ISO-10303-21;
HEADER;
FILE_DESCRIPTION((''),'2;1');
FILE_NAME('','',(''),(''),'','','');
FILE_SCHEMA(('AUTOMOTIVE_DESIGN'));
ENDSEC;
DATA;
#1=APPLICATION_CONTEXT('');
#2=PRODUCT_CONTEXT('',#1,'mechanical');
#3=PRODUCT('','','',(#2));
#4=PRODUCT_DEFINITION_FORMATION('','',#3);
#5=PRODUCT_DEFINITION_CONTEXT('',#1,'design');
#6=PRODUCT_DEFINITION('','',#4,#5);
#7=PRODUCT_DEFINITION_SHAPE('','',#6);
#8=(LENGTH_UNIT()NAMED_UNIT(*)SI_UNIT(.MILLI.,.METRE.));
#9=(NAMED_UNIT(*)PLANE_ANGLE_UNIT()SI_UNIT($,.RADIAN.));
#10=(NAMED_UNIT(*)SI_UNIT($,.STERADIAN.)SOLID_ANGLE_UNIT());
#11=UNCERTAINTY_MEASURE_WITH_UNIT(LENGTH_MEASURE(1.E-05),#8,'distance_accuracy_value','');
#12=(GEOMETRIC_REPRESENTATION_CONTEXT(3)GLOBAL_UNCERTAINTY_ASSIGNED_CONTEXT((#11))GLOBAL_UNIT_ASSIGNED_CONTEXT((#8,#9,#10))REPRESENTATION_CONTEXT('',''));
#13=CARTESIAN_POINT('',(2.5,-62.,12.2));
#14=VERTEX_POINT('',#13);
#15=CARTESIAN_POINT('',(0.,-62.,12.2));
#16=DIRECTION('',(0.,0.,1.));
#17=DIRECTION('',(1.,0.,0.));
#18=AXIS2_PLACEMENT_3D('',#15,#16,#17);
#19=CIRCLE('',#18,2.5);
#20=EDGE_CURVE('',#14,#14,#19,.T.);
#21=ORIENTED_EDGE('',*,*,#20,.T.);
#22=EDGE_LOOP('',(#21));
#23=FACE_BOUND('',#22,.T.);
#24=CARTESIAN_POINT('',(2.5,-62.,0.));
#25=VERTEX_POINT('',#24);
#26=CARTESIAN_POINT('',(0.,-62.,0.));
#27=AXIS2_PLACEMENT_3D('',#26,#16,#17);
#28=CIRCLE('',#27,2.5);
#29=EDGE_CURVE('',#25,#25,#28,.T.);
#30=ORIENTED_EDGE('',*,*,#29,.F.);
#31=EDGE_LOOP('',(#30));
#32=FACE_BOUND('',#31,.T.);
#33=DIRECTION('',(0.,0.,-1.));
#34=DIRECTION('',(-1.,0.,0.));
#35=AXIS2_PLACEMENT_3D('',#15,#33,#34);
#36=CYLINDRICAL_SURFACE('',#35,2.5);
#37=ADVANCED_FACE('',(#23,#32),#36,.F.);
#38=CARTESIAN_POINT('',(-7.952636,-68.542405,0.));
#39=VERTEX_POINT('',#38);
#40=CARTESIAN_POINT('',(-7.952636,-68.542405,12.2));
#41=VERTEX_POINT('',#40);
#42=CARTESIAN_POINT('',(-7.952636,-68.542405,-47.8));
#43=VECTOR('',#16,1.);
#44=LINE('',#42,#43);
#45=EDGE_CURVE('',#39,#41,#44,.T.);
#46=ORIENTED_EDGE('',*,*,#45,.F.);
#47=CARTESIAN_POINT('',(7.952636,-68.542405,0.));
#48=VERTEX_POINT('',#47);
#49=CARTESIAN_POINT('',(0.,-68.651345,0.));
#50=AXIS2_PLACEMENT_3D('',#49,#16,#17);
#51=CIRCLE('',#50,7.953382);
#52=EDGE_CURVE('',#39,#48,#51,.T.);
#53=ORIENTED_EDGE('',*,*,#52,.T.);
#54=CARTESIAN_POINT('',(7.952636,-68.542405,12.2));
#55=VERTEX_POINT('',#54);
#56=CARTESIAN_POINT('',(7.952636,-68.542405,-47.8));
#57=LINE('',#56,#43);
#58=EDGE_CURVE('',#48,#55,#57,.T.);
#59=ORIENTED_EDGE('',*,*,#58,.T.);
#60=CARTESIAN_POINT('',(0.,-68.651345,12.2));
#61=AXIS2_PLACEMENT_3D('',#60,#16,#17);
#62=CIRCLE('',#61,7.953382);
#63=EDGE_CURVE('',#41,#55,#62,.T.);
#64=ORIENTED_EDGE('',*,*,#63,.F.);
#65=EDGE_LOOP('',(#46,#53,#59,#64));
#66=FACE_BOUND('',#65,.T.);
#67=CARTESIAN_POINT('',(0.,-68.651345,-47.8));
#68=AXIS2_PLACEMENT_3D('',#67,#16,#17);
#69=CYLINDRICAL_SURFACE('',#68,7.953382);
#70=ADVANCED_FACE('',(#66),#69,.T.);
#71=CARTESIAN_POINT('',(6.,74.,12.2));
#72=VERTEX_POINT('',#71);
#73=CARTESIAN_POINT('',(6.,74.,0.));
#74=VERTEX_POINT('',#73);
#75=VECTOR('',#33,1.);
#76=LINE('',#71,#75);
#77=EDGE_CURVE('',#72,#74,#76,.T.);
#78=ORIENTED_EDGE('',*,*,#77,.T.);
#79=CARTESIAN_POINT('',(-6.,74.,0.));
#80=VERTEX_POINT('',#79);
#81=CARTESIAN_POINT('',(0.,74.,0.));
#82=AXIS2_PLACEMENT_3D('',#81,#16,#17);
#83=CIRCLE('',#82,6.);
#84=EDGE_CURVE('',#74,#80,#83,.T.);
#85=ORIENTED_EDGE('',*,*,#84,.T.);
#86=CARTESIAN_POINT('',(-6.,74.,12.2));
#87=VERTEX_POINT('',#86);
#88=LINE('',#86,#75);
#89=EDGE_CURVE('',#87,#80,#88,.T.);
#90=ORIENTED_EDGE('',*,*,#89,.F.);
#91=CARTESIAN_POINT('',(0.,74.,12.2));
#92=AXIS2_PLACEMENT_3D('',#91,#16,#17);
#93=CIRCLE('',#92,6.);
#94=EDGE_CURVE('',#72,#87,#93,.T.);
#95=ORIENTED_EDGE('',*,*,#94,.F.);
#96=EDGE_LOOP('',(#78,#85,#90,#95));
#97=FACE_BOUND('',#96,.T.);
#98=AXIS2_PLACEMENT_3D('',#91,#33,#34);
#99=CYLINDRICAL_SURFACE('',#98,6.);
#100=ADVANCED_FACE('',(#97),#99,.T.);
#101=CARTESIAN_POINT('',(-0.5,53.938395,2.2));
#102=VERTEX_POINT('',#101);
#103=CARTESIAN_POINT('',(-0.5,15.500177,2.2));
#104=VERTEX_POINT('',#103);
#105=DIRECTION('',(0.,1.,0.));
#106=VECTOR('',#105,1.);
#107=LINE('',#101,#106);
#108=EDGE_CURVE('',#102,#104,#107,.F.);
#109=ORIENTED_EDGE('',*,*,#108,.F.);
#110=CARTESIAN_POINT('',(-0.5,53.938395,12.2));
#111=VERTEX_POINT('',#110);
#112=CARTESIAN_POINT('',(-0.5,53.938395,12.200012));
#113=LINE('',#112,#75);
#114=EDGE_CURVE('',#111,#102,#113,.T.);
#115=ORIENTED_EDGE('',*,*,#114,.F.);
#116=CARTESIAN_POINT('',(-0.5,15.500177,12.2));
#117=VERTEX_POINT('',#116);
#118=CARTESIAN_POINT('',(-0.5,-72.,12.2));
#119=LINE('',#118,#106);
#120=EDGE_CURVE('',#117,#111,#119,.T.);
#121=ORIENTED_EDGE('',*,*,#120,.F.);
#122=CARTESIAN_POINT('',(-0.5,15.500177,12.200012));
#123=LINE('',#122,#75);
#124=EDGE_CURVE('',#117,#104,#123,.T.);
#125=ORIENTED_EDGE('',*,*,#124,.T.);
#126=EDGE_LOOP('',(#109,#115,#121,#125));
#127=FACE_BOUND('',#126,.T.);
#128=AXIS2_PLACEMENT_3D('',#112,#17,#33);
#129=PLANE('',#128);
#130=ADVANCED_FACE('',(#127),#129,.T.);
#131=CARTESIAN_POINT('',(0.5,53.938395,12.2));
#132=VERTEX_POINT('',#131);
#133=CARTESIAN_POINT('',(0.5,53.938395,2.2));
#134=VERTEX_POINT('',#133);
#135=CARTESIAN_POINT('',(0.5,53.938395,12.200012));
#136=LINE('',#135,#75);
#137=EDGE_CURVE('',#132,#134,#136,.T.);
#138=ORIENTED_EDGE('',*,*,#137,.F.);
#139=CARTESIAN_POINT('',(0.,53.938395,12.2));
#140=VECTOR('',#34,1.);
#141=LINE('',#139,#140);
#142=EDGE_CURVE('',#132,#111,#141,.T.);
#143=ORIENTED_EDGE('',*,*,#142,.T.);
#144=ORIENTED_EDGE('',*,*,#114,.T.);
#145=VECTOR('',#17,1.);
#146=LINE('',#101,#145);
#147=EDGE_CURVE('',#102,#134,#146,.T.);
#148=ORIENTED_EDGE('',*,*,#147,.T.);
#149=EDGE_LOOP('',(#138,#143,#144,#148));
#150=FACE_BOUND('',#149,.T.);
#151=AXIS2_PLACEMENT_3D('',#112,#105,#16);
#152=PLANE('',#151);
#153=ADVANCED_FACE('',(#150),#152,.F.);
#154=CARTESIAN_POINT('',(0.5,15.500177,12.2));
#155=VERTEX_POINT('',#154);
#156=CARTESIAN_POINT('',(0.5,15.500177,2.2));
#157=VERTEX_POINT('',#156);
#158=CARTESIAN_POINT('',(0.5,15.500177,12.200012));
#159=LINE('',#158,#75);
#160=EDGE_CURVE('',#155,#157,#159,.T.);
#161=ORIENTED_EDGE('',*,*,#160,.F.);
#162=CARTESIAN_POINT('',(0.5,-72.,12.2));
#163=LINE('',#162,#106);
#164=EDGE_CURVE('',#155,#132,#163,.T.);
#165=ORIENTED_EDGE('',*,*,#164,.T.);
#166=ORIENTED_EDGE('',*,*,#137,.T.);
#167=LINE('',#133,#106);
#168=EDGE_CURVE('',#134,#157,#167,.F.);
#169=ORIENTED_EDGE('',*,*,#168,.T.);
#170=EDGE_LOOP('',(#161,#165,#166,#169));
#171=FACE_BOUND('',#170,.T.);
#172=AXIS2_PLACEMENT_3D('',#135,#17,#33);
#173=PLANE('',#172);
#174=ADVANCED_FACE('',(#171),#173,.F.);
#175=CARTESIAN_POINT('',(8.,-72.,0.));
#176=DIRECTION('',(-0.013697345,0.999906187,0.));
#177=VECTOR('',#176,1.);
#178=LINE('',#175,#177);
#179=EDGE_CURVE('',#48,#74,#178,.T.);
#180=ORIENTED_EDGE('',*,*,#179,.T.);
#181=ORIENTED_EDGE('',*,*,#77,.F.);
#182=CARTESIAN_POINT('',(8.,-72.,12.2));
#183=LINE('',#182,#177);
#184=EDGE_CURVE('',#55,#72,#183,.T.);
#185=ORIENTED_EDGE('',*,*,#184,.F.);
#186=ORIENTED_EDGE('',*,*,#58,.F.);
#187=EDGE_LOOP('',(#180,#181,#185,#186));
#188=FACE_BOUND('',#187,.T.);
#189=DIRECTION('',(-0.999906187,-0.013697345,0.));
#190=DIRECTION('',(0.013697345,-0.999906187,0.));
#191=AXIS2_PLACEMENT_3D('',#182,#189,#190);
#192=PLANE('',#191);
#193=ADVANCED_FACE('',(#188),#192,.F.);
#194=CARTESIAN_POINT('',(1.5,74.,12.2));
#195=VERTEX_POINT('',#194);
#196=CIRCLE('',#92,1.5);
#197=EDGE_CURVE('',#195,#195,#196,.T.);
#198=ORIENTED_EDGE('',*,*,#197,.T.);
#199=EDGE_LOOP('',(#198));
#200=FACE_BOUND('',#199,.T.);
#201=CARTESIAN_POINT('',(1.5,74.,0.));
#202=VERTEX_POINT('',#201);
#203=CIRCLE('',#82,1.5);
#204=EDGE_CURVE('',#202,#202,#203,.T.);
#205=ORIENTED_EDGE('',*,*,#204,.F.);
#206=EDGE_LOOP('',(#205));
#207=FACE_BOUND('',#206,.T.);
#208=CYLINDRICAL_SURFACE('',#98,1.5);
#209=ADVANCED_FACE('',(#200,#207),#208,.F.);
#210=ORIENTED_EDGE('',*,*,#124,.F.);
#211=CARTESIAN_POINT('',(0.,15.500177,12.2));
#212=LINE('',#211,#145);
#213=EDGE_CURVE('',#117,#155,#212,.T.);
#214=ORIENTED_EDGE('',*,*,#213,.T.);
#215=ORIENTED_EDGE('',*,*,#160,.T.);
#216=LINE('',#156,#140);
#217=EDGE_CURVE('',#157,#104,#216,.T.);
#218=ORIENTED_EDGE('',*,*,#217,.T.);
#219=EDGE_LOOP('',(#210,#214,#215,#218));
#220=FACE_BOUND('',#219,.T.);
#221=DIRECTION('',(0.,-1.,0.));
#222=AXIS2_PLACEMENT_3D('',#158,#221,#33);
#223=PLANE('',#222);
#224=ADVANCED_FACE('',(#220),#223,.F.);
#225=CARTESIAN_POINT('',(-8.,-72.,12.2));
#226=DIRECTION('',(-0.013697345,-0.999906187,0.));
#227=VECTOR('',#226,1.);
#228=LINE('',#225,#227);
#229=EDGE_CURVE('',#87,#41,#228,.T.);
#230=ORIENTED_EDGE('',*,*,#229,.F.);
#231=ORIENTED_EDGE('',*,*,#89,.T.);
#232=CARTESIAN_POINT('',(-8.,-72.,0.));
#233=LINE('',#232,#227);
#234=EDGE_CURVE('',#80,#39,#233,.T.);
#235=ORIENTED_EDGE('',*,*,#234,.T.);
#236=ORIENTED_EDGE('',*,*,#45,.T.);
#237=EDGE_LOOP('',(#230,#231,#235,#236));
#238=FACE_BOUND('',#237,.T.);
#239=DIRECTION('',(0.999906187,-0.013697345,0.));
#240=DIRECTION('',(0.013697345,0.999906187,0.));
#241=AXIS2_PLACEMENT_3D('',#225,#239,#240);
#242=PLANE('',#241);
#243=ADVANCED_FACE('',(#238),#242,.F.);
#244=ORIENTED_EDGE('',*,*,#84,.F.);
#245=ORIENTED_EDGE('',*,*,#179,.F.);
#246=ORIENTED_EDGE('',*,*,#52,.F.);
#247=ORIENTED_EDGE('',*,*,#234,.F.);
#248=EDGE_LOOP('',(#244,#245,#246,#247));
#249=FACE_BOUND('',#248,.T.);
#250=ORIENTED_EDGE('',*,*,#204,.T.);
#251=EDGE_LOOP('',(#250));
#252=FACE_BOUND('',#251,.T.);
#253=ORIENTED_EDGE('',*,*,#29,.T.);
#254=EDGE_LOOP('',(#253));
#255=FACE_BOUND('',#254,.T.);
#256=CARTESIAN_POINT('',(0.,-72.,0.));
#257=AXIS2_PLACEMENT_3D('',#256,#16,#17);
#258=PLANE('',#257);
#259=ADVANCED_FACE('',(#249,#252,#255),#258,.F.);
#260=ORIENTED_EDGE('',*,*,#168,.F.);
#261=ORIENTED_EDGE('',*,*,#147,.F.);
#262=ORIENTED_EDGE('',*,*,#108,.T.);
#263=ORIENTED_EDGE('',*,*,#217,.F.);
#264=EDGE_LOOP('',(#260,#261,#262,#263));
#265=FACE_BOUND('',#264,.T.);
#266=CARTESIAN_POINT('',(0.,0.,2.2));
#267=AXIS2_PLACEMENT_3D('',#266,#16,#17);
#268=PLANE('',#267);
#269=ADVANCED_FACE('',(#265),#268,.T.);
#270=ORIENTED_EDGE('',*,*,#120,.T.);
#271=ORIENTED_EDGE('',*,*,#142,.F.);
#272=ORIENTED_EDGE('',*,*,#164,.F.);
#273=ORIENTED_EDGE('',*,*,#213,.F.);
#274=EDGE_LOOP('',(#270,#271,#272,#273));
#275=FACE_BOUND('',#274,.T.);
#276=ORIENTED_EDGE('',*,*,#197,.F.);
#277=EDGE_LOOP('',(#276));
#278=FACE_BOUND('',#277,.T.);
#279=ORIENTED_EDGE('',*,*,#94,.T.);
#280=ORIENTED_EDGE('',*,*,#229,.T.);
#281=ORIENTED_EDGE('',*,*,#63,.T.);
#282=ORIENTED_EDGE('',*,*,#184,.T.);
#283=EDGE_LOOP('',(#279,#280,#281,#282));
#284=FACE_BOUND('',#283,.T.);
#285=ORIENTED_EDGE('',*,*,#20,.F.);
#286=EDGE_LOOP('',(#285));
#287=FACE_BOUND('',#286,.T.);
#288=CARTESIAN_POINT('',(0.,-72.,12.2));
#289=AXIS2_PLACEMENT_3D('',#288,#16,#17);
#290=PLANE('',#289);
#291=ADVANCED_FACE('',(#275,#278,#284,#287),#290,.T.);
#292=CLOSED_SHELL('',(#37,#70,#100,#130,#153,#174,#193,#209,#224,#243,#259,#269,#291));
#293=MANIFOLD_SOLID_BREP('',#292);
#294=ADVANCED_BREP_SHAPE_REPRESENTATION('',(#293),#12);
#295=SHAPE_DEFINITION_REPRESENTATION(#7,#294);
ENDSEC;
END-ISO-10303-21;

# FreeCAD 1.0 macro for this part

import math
import FreeCAD as App
import Part
import Sketcher


def add_polygon(sketch, points):
    """Adds a closed chain of lines whose ends are joined by coincident constraints."""
    first, n = sketch.GeometryCount, len(points)
    for a, b in zip(points, points[1:] + points[:1]):
        sketch.addGeometry(Part.LineSegment(App.Vector(*a, 0), App.Vector(*b, 0)), False)
    for i in range(n):
        sketch.addConstraint(Sketcher.Constraint("Coincident", first + i, 2, first + (i + 1) % n, 1))

doc = App.newDocument("Part")
body = doc.addObject("PartDesign::Body", "Body")

# Sketch on XY plane
sketch1 = body.newObject("Sketcher::SketchObject", "Sketch")
sketch1.AttachmentSupport = (doc.getObject("XY_Plane"), [""])
sketch1.MapMode = "FlatFace"
sketch1.addGeometry([
    Part.LineSegment(App.Vector(-6, 74, 0), App.Vector(-8, -72, 0)),  # 0
    Part.ArcOfCircle(Part.Circle(App.Vector(0, -72, 0), App.Vector(0, 0, 1), 8), math.radians(180), math.radians(360)),  # 1
    Part.LineSegment(App.Vector(8, -72, 0), App.Vector(6, 74, 0)),  # 2
    Part.ArcOfCircle(Part.Circle(App.Vector(0, 74, 0), App.Vector(0, 0, 1), 6), math.radians(0), math.radians(180)),  # 3
    Part.Circle(App.Vector(0, -62, 0), App.Vector(0, 0, 1), 2.5),  # 4
    Part.Circle(App.Vector(0, 74, 0), App.Vector(0, 0, 1), 1.5),  # 5
], False)
sketch1.addConstraint([
    Sketcher.Constraint("Coincident", 0, 2, 1, 1),
    Sketcher.Constraint("Coincident", 1, 2, 2, 1),
    Sketcher.Constraint("Coincident", 2, 2, 3, 1),
    Sketcher.Constraint("Coincident", 3, 2, 0, 1),
    Sketcher.Constraint("Coincident", 5, 3, 3, 3),
    Sketcher.Constraint("Symmetric", 0, 2, 1, 2, -2),
    Sketcher.Constraint("Symmetric", 2, 2, 3, 2, -2),
    Sketcher.Constraint("PointOnObject", 4, 3, -2),
    Sketcher.Constraint("Horizontal", 1, 3, 0, 2),
    Sketcher.Constraint("Horizontal", 5, 3, 2, 2),
    Sketcher.Constraint("Diameter", 4, 5.0),
    Sketcher.Constraint("Diameter", 5, 3.0),
    Sketcher.Constraint("Radius", 1, 8.0),
    Sketcher.Constraint("Radius", 3, 6.0),
    Sketcher.Constraint("DistanceY", 1, 3, -1, 1, 72.0),
    Sketcher.Constraint("DistanceY", -1, 1, 3, 3, 74.0),
    Sketcher.Constraint("DistanceY", 4, 3, -1, 1, 62.0),
])
pad1 = body.newObject("PartDesign::Pad", "Pad")
pad1.Profile = sketch1
pad1.Length = 12.2

# Sketch on XY plane
sketch2 = body.newObject("Sketcher::SketchObject", "Sketch001")
sketch2.AttachmentSupport = (doc.getObject("XY_Plane"), [""])
sketch2.MapMode = "FlatFace"
sketch2.AttachmentOffset = App.Placement(App.Vector(0, 0, 12.2), App.Rotation())
sketch2.addGeometry([
    Part.ArcOfCircle(Part.Circle(App.Vector(0, -68.651345, 0), App.Vector(0, 0, 1), 7.953382), math.radians(179.215175), math.radians(360.784825)),
    Part.LineSegment(App.Vector(-7.952636, -68.542405, 0), App.Vector(-17.951698, -68.405432, 0)),
    Part.ArcOfCircle(Part.Circle(App.Vector(0, -68.651345, 0), App.Vector(0, 0, 1), 17.953382), math.radians(179.215175), math.radians(360.784825)),
    Part.LineSegment(App.Vector(17.951698, -68.405432, 0), App.Vector(7.952636, -68.542405, 0)),
], False)
sketch2.addConstraint([
    Sketcher.Constraint("Coincident", 0, 1, 1, 1),
    Sketcher.Constraint("Coincident", 1, 2, 2, 1),
    Sketcher.Constraint("Coincident", 2, 2, 3, 1),
    Sketcher.Constraint("Coincident", 3, 2, 0, 2),
    Sketcher.Constraint("Coincident", 2, 3, 0, 3),
    Sketcher.Constraint("Symmetric", 1, 2, 2, 2, -2),
    Sketcher.Constraint("Horizontal", 0, 1, 3, 2),
    Sketcher.Constraint("Distance", 1, 10.0),
    Sketcher.Constraint("Radius", 0, 7.953382),
    Sketcher.Constraint("DistanceY", 1, 2, -1, 1, 68.405432),
    Sketcher.Constraint("DistanceY", 0, 3, 0, 1, 0.10894),
    Sketcher.Constraint("DistanceX", 1, 2, 0, 1, 9.999062),
])
pocket1 = body.newObject("PartDesign::Pocket", "Pocket")
pocket1.Profile = sketch2
pocket1.Type = "ThroughAll"
pocket1.Midplane = True

# Sketch on XY plane
sketch3 = body.newObject("Sketcher::SketchObject", "Sketch002")
sketch3.AttachmentSupport = (doc.getObject("XY_Plane"), [""])
sketch3.MapMode = "FlatFace"
sketch3.AttachmentOffset = App.Placement(App.Vector(0, 0, 12.2), App.Rotation())
add_polygon(sketch3, [(-0.5, 53.938395), (-0.5, 15.500177), (0.5, 15.500177), (0.5, 53.938395)])  # lines 0-3
sketch3.addConstraint([
    Sketcher.Constraint("Vertical", 0),
    Sketcher.Constraint("Horizontal", 1),
    Sketcher.Constraint("Vertical", 2),
    Sketcher.Constraint("Horizontal", 3),
    Sketcher.Constraint("DistanceX", 1, 1, 1, 2, 1.0),
    Sketcher.Constraint("DistanceX", 0, 2, -1, 1, 0.5),
    Sketcher.Constraint("DistanceY", 0, 2, 0, 1, 38.438218),
    Sketcher.Constraint("DistanceY", -1, 1, 0, 2, 15.500177),
])
pocket2 = body.newObject("PartDesign::Pocket", "Pocket001")
pocket2.Profile = sketch3
pocket2.Type = "TwoLengths"
pocket2.Length = 82.314797
pocket2.Length2 = 10
pocket2.Reversed = True

doc.recompute()
